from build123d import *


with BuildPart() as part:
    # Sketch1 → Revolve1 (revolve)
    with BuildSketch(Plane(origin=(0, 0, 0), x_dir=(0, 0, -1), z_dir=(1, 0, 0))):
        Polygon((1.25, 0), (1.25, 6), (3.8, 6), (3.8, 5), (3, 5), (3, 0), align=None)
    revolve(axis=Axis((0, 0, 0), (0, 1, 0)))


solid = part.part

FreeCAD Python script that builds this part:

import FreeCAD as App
import Part
import Sketcher
Q = App.Units.Quantity

doc = App.newDocument("Part")
body = doc.addObject("PartDesign::Body", "Body")

sketch1 = body.newObject("Sketcher::SketchObject", "Sketch")
sketch1.AttachmentSupport = (doc.getObject("YZ_Plane"), [""])
sketch1.MapMode = "FlatFace"
sketch1.addGeometry(Part.LineSegment(App.Vector(6, -1.25, 0), App.Vector(0, -1.25, 0)), False)
sketch1.addGeometry(Part.LineSegment(App.Vector(0, -1.25, 0), App.Vector(0, -3, 0)), False)
sketch1.addGeometry(Part.LineSegment(App.Vector(0, -3, 0), App.Vector(5, -3, 0)), False)
sketch1.addGeometry(Part.LineSegment(App.Vector(5, -3, 0), App.Vector(5, -3.8, 0)), False)
sketch1.addGeometry(Part.LineSegment(App.Vector(5, -3.8, 0), App.Vector(6, -3.8, 0)), False)
sketch1.addGeometry(Part.LineSegment(App.Vector(6, -3.8, 0), App.Vector(6, -1.25, 0)), False)
sketch1.addConstraint(Sketcher.Constraint("Coincident", 0, 2, 1, 1))
sketch1.addConstraint(Sketcher.Constraint("Coincident", 1, 2, 2, 1))
sketch1.addConstraint(Sketcher.Constraint("Coincident", 2, 2, 3, 1))
sketch1.addConstraint(Sketcher.Constraint("Coincident", 3, 2, 4, 1))
sketch1.addConstraint(Sketcher.Constraint("Coincident", 4, 2, 5, 1))
sketch1.addConstraint(Sketcher.Constraint("Coincident", 5, 2, 0, 1))
sketch1.addConstraint(Sketcher.Constraint("Horizontal", 0))
sketch1.addConstraint(Sketcher.Constraint("Vertical", 1))
sketch1.addConstraint(Sketcher.Constraint("Horizontal", 2))
sketch1.addConstraint(Sketcher.Constraint("Vertical", 3))
sketch1.addConstraint(Sketcher.Constraint("Horizontal", 4))
sketch1.addConstraint(Sketcher.Constraint("Vertical", 5))
sketch1.addConstraint(Sketcher.Constraint("PointOnObject", 0, 2, -2))
sketch1.addConstraint(Sketcher.Constraint("DistanceX", 0, 2, 0, 1, Q("6 mm")))
sketch1.addConstraint(Sketcher.Constraint("DistanceX", 2, 1, 2, 2, Q("5 mm")))
sketch1.addConstraint(Sketcher.Constraint("DistanceY", 3, 2, 3, 1, Q("0.8 mm")))
sketch1.addConstraint(Sketcher.Constraint("DistanceY", 1, 2, -1, 1, Q("3 mm")))
sketch1.addConstraint(Sketcher.Constraint("DistanceY", 1, 2, 1, 1, Q("1.75 mm")))
revolution = body.newObject("PartDesign::Revolution", "Revolution")
revolution.Profile = sketch1
revolution.ReferenceAxis = (sketch1, ["H_Axis"])
revolution.Angle = 360

doc.recompute()
